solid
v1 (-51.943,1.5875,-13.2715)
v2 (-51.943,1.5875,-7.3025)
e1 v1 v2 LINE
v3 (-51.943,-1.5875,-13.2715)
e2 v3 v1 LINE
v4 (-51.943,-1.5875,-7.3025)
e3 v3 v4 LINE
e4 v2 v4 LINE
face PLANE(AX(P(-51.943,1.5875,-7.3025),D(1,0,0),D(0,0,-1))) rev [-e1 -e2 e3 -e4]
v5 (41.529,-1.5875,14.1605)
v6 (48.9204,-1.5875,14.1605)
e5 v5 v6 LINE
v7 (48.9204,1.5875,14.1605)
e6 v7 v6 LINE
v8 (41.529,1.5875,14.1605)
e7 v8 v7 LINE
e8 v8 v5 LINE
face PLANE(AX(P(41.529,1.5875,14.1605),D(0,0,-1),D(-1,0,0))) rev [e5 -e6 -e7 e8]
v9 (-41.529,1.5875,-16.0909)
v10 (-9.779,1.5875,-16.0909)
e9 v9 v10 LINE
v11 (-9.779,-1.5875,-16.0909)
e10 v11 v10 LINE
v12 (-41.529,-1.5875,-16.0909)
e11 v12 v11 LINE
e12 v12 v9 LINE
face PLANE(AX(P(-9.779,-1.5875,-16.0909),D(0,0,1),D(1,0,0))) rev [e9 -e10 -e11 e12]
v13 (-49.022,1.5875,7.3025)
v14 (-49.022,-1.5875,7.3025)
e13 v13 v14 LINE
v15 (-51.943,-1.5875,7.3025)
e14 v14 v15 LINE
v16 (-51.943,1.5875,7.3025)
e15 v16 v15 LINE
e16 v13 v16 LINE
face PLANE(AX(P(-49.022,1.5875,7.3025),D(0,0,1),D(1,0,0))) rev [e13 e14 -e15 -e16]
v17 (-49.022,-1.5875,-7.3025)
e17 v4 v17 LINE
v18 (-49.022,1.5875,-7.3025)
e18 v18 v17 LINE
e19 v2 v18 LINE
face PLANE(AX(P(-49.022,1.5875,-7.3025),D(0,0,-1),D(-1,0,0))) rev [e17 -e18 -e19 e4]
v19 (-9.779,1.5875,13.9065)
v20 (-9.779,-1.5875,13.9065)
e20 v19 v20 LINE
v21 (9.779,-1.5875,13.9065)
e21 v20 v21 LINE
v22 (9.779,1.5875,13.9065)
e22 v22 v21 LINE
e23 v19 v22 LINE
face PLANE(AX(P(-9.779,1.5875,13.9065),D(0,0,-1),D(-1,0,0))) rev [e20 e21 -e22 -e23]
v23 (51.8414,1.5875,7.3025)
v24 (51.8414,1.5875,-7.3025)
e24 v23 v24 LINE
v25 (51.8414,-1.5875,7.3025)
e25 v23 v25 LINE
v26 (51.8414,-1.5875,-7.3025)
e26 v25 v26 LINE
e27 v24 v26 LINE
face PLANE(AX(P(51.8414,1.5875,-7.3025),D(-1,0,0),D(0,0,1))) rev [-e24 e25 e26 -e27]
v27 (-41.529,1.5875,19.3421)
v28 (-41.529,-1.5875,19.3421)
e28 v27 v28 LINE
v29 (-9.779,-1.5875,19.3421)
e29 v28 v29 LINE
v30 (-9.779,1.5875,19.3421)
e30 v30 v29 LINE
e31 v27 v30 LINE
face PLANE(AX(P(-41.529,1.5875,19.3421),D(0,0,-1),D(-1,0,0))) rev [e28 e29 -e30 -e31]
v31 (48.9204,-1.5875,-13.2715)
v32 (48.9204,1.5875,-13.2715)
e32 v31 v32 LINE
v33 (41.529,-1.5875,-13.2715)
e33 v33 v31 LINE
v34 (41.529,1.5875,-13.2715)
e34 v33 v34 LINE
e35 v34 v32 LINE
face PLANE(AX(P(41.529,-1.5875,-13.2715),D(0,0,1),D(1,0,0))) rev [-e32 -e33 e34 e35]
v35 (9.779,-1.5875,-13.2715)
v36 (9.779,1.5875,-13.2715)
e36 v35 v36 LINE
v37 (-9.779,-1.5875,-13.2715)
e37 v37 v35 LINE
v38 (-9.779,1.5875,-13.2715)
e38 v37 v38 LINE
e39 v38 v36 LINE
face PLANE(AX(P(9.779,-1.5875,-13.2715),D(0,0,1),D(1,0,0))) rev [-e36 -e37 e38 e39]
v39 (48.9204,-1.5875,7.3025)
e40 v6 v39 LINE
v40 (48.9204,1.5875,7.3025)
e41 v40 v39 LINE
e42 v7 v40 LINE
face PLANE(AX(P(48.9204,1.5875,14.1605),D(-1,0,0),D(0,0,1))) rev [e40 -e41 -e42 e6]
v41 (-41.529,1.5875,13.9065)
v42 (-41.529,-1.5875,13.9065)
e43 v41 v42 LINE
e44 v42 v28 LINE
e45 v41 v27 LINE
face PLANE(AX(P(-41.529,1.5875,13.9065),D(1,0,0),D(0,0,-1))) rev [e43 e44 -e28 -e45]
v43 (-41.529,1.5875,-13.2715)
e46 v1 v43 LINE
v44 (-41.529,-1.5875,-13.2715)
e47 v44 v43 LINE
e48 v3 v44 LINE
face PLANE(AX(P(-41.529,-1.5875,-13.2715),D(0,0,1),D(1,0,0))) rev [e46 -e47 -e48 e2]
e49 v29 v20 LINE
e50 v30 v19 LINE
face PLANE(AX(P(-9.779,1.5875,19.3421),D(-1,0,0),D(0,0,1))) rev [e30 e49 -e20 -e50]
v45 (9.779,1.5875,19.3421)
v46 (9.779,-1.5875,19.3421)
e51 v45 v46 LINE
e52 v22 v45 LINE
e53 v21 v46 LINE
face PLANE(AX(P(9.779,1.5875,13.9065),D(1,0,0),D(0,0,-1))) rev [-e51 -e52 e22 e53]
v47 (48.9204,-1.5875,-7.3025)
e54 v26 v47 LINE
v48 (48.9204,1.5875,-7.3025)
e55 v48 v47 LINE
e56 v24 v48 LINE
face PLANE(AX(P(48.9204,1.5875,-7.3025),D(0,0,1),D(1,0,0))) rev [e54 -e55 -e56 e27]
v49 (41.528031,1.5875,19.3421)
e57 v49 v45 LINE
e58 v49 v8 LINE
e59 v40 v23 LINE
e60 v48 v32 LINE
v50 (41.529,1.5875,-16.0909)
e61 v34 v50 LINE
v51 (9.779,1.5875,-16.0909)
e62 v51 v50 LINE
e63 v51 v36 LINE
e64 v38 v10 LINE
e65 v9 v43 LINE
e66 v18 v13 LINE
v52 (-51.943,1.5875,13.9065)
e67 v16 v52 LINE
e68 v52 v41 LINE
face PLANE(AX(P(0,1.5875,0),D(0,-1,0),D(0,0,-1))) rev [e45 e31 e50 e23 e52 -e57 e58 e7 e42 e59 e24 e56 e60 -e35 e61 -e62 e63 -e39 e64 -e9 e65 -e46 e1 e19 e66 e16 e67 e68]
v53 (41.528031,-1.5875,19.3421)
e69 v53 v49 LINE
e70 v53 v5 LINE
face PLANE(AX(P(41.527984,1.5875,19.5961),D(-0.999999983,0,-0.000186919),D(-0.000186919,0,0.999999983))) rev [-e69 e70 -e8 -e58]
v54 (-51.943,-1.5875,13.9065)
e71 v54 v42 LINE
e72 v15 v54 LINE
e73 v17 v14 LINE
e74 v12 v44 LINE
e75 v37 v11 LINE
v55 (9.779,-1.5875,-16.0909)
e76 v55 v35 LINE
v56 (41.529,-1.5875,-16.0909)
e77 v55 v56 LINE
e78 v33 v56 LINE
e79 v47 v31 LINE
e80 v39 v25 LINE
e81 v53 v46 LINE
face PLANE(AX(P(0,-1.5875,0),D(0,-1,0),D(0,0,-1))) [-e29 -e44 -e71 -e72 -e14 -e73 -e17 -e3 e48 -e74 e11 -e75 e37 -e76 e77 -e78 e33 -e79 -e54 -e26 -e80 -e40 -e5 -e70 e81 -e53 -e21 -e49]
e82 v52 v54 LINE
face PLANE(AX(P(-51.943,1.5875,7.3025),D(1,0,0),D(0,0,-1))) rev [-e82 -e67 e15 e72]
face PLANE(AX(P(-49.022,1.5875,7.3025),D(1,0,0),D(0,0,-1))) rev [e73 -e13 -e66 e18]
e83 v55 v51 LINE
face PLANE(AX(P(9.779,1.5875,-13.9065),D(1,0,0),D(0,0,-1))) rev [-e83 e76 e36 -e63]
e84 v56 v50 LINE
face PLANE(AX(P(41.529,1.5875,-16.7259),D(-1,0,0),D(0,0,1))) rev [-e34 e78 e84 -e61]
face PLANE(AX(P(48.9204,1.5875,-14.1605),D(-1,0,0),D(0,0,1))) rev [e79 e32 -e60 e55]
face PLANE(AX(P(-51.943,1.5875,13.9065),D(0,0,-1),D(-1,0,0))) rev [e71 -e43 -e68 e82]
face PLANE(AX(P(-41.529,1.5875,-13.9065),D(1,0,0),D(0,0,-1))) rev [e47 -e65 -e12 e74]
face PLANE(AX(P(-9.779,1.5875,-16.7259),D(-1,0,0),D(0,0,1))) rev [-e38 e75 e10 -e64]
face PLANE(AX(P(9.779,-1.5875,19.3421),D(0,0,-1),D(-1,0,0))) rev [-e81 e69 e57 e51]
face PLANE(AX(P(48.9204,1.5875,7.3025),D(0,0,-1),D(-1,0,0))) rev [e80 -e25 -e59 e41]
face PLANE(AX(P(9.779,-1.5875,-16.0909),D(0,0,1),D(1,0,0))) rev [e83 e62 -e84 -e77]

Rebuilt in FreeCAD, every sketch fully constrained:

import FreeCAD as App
import Part
import Sketcher
from FreeCAD import Vector
Q = App.Units.Quantity

doc = App.newDocument("Part")
params = doc.addObject("Spreadsheet::Sheet", "Params")
for row, (alias, value) in enumerate([
    ("sketch1_width", "0.41 in"),
    ("sketch1_width2", "1.25 in"),
    ("sketch1_width3", "0.77 in"),
    ("sketch1_height", "0.26 in"),
    ("sketch1_height2", "0.27 in"),
    ("pad1_length", "0.125 in"),
    ("sketch2_width", "0.41 in"),
    ("sketch2_width2", "0.77 in"),
    ("sketch2_width3", "0.291 in"),
    ("sketch2_height", "0.025 in"),
    ("sketch2_height2", "0.035 in"),
    ("sketch3_width", "1.25 in"),
    ("sketch3_length", "0.01 in"),
    ("sketch3_height", "0.025 in"),
], start=1):
    params.set(f"A{row}", alias)
    params.set(f"B{row}", "=" + value)
    params.setAlias(f"B{row}", alias)

body = doc.addObject("PartDesign::Body", "Body")

# Sketch on XZ plane
sketch1 = doc.addObject("Sketcher::SketchObject", "Sketch")
body.addObject(sketch1)
sketch1.AttachmentSupport = (doc.XZ_Plane, [""])
sketch1.MapMode = "FlatFace"
sketch1.addGeometry(Part.LineSegment(Vector(-49, -7.3, 0), Vector(-49, 7.3, 0)), False)
sketch1.addGeometry(Part.LineSegment(Vector(-49, 7.3, 0), Vector(-51.9, 7.3, 0)), False)
sketch1.addGeometry(Part.LineSegment(Vector(-51.9, 7.3, 0), Vector(-51.9, 13.9, 0)), False)
sketch1.addGeometry(Part.LineSegment(Vector(-51.9, 13.9, 0), Vector(-41.5, 13.9, 0)), False)
sketch1.addGeometry(Part.LineSegment(Vector(-41.5, 13.9, 0), Vector(-41.5, 19.3, 0)), False)
sketch1.addGeometry(Part.LineSegment(Vector(-41.5, 19.3, 0), Vector(-9.8, 19.3, 0)), False)
sketch1.addGeometry(Part.LineSegment(Vector(-9.8, 19.3, 0), Vector(-9.8, 13.9, 0)), False)
sketch1.addGeometry(Part.LineSegment(Vector(-9.8, 13.9, 0), Vector(9.8, 13.9, 0)), False)
sketch1.addGeometry(Part.LineSegment(Vector(9.8, 13.9, 0), Vector(9.8, 19.3, 0)), False)
sketch1.addGeometry(Part.LineSegment(Vector(9.8, 19.3, 0), Vector(41.5, 19.6, 0)), False)
sketch1.addGeometry(Part.LineSegment(Vector(41.5, 19.6, 0), Vector(41.5, 14.2, 0)), False)
sketch1.addGeometry(Part.LineSegment(Vector(41.5, 14.2, 0), Vector(48.9, 14.2, 0)), False)
sketch1.addGeometry(Part.LineSegment(Vector(48.9, 14.2, 0), Vector(48.9, 7.3, 0)), False)
sketch1.addGeometry(Part.LineSegment(Vector(48.9, 7.3, 0), Vector(51.8, 7.3, 0)), False)
sketch1.addGeometry(Part.LineSegment(Vector(51.8, 7.3, 0), Vector(51.8, -7.3, 0)), False)
sketch1.addGeometry(Part.LineSegment(Vector(51.8, -7.3, 0), Vector(48.9, -7.3, 0)), False)
sketch1.addGeometry(Part.LineSegment(Vector(48.9, -7.3, 0), Vector(48.9, -14.2, 0)), False)
sketch1.addGeometry(Part.LineSegment(Vector(48.9, -14.2, 0), Vector(41.5, -14.2, 0)), False)
sketch1.addGeometry(Part.LineSegment(Vector(41.5, -14.2, 0), Vector(41.5, -16.7, 0)), False)
sketch1.addGeometry(Part.LineSegment(Vector(41.5, -16.7, 0), Vector(9.8, -16.7, 0)), False)
sketch1.addGeometry(Part.LineSegment(Vector(9.8, -16.7, 0), Vector(9.8, -13.9, 0)), False)
sketch1.addGeometry(Part.LineSegment(Vector(9.8, -13.9, 0), Vector(-9.8, -13.9, 0)), False)
sketch1.addGeometry(Part.LineSegment(Vector(-9.8, -13.9, 0), Vector(-9.8, -16.7, 0)), False)
sketch1.addGeometry(Part.LineSegment(Vector(-9.8, -16.7, 0), Vector(-41.5, -16.7, 0)), False)
sketch1.addGeometry(Part.LineSegment(Vector(-41.5, -16.7, 0), Vector(-41.5, -13.9, 0)), False)
sketch1.addGeometry(Part.LineSegment(Vector(-41.5, -13.9, 0), Vector(-51.9, -13.9, 0)), False)
sketch1.addGeometry(Part.LineSegment(Vector(-51.9, -13.9, 0), Vector(-51.9, -7.3, 0)), False)
sketch1.addGeometry(Part.LineSegment(Vector(-51.9, -7.3, 0), Vector(-49, -7.3, 0)), False)
sketch1.addConstraint(Sketcher.Constraint("Coincident", 0, 2, 1, 1))
sketch1.addConstraint(Sketcher.Constraint("Coincident", 1, 2, 2, 1))
sketch1.addConstraint(Sketcher.Constraint("Coincident", 2, 2, 3, 1))
sketch1.addConstraint(Sketcher.Constraint("Coincident", 3, 2, 4, 1))
sketch1.addConstraint(Sketcher.Constraint("Coincident", 4, 2, 5, 1))
sketch1.addConstraint(Sketcher.Constraint("Coincident", 5, 2, 6, 1))
sketch1.addConstraint(Sketcher.Constraint("Coincident", 6, 2, 7, 1))
sketch1.addConstraint(Sketcher.Constraint("Coincident", 7, 2, 8, 1))
sketch1.addConstraint(Sketcher.Constraint("Coincident", 8, 2, 9, 1))
sketch1.addConstraint(Sketcher.Constraint("Coincident", 9, 2, 10, 1))
sketch1.addConstraint(Sketcher.Constraint("Coincident", 10, 2, 11, 1))
sketch1.addConstraint(Sketcher.Constraint("Coincident", 11, 2, 12, 1))
sketch1.addConstraint(Sketcher.Constraint("Coincident", 12, 2, 13, 1))
sketch1.addConstraint(Sketcher.Constraint("Coincident", 13, 2, 14, 1))
sketch1.addConstraint(Sketcher.Constraint("Coincident", 14, 2, 15, 1))
sketch1.addConstraint(Sketcher.Constraint("Coincident", 15, 2, 16, 1))
sketch1.addConstraint(Sketcher.Constraint("Coincident", 16, 2, 17, 1))
sketch1.addConstraint(Sketcher.Constraint("Coincident", 17, 2, 18, 1))
sketch1.addConstraint(Sketcher.Constraint("Coincident", 18, 2, 19, 1))
sketch1.addConstraint(Sketcher.Constraint("Coincident", 19, 2, 20, 1))
sketch1.addConstraint(Sketcher.Constraint("Coincident", 20, 2, 21, 1))
sketch1.addConstraint(Sketcher.Constraint("Coincident", 21, 2, 22, 1))
sketch1.addConstraint(Sketcher.Constraint("Coincident", 22, 2, 23, 1))
sketch1.addConstraint(Sketcher.Constraint("Coincident", 23, 2, 24, 1))
sketch1.addConstraint(Sketcher.Constraint("Coincident", 24, 2, 25, 1))
sketch1.addConstraint(Sketcher.Constraint("Coincident", 25, 2, 26, 1))
sketch1.addConstraint(Sketcher.Constraint("Coincident", 26, 2, 27, 1))
sketch1.addConstraint(Sketcher.Constraint("Coincident", 27, 2, 0, 1))
sketch1.addConstraint(Sketcher.Constraint("Vertical", 0))
sketch1.addConstraint(Sketcher.Constraint("Horizontal", 1))
sketch1.addConstraint(Sketcher.Constraint("Vertical", 2))
sketch1.addConstraint(Sketcher.Constraint("Horizontal", 3))
sketch1.addConstraint(Sketcher.Constraint("Vertical", 4))
sketch1.addConstraint(Sketcher.Constraint("Horizontal", 5))
sketch1.addConstraint(Sketcher.Constraint("Vertical", 6))
sketch1.addConstraint(Sketcher.Constraint("Horizontal", 7))
sketch1.addConstraint(Sketcher.Constraint("Vertical", 8))
sketch1.addConstraint(Sketcher.Constraint("Horizontal", 11))
sketch1.addConstraint(Sketcher.Constraint("Vertical", 12))
sketch1.addConstraint(Sketcher.Constraint("Horizontal", 13))
sketch1.addConstraint(Sketcher.Constraint("Vertical", 14))
sketch1.addConstraint(Sketcher.Constraint("Horizontal", 15))
sketch1.addConstraint(Sketcher.Constraint("Vertical", 16))
sketch1.addConstraint(Sketcher.Constraint("Horizontal", 17))
sketch1.addConstraint(Sketcher.Constraint("Vertical", 18))
sketch1.addConstraint(Sketcher.Constraint("Horizontal", 19))
sketch1.addConstraint(Sketcher.Constraint("Vertical", 20))
sketch1.addConstraint(Sketcher.Constraint("Horizontal", 21))
sketch1.addConstraint(Sketcher.Constraint("Vertical", 22))
sketch1.addConstraint(Sketcher.Constraint("Horizontal", 23))
sketch1.addConstraint(Sketcher.Constraint("Vertical", 24))
sketch1.addConstraint(Sketcher.Constraint("Horizontal", 25))
sketch1.addConstraint(Sketcher.Constraint("Vertical", 26))
sketch1.addConstraint(Sketcher.Constraint("Horizontal", 27))
sketch1.addConstraint(Sketcher.Constraint("Symmetric", 6, 2, 20, 2, -1, 1))
sketch1.addConstraint(Sketcher.Constraint("Symmetric", 5, 2, 8, 2, -2))
sketch1.addConstraint(Sketcher.Constraint("Symmetric", 19, 2, 22, 2, -2))
sketch1.addConstraint(Sketcher.Constraint("Symmetric", 12, 2, 15, 2, -1))
sketch1.addConstraint(Sketcher.Constraint("Symmetric", 10, 2, 17, 2, -1))
sketch1.addConstraint(Sketcher.Constraint("Symmetric", 3, 2, 24, 2, -1))
sketch1.addConstraint(Sketcher.Constraint("Symmetric", 1, 2, 26, 2, -1))
sketch1.addConstraint(Sketcher.Constraint("Horizontal", 3, 2, 6, 2))
sketch1.addConstraint(Sketcher.Constraint("Horizontal", 1, 2, 12, 2))
sketch1.addConstraint(Sketcher.Constraint("Equal", 1, 13))
sketch1.addConstraint(Sketcher.Constraint("Equal", 5, 19))
sketch1.addConstraint(Sketcher.Constraint("DistanceX", 3, 1, 3, 2, Q("0.41 in")))
sketch1.addConstraint(Sketcher.Constraint("DistanceX", 5, 1, 5, 2, Q("1.25 in")))
sketch1.addConstraint(Sketcher.Constraint("DistanceX", 7, 1, 7, 2, Q("0.77 in")))
sketch1.addConstraint(Sketcher.Constraint("DistanceY", 2, 1, 2, 2, Q("0.26 in")))
sketch1.addConstraint(Sketcher.Constraint("DistanceY", 12, 2, 12, 1, Q("0.27 in")))
sketch1.addConstraint(Sketcher.Constraint("Distance", 9, Q("1.25 in")))
sketch1.addConstraint(Sketcher.Constraint("DistanceX", 1, 2, 1, 1, Q("0.115 in")))
sketch1.addConstraint(Sketcher.Constraint("DistanceX", 11, 1, 11, 2, Q("0.291 in")))
sketch1.addConstraint(Sketcher.Constraint("DistanceY", 0, 1, 0, 2, Q("0.575 in")))
sketch1.addConstraint(Sketcher.Constraint("DistanceY", 4, 1, 4, 2, Q("0.214 in")))
sketch1.addConstraint(Sketcher.Constraint("DistanceY", 18, 2, 18, 1, Q("0.101 in")))
sketch1.addConstraint(Sketcher.Constraint("DistanceY", 8, 2, 9, 2, Q("0.01 in")))
sketch1.setExpression("Constraints[65]", "Params.sketch1_width")
sketch1.setExpression("Constraints[66]", "Params.sketch1_width2")
sketch1.setExpression("Constraints[67]", "Params.sketch1_width3")
sketch1.setExpression("Constraints[68]", "Params.sketch1_height")
sketch1.setExpression("Constraints[69]", "Params.sketch1_height2")
pad1 = doc.addObject("PartDesign::Pad", "Pad")
body.addObject(pad1)
pad1.Profile = sketch1
pad1.setExpression("Length", "Params.pad1_length")
pad1.Midplane = True

# Sketch on XZ plane
sketch2 = doc.addObject("Sketcher::SketchObject", "Sketch001")
body.addObject(sketch2)
sketch2.AttachmentSupport = (doc.XZ_Plane, [""])
sketch2.MapMode = "FlatFace"
sketch2.AttachmentOffset = App.Placement(Vector(0, 0, -0.0625 * 25.4), App.Rotation())
sketch2.addGeometry(Part.LineSegment(Vector(-51.9, -13.9, 0), Vector(-51.9, -13.3, 0)), False)
sketch2.addGeometry(Part.LineSegment(Vector(-51.9, -13.3, 0), Vector(-41.5, -13.3, 0)), False)
sketch2.addGeometry(Part.LineSegment(Vector(-41.5, -13.3, 0), Vector(-41.5, -13.9, 0)), False)
sketch2.addGeometry(Part.LineSegment(Vector(-41.5, -13.9, 0), Vector(-51.9, -13.9, 0)), False)
sketch2.addGeometry(Part.LineSegment(Vector(-9.8, -13.9, 0), Vector(-9.8, -13.3, 0)), False)
sketch2.addGeometry(Part.LineSegment(Vector(-9.8, -13.3, 0), Vector(9.8, -13.3, 0)), False)
sketch2.addGeometry(Part.LineSegment(Vector(9.8, -13.3, 0), Vector(9.8, -13.9, 0)), False)
sketch2.addGeometry(Part.LineSegment(Vector(9.8, -13.9, 0), Vector(-9.8, -13.9, 0)), False)
sketch2.addGeometry(Part.LineSegment(Vector(41.5, -14.2, 0), Vector(41.5, -13.3, 0)), False)
sketch2.addGeometry(Part.LineSegment(Vector(41.5, -13.3, 0), Vector(48.9, -13.3, 0)), False)
sketch2.addGeometry(Part.LineSegment(Vector(48.9, -13.3, 0), Vector(48.9, -14.2, 0)), False)
sketch2.addGeometry(Part.LineSegment(Vector(48.9, -14.2, 0), Vector(41.5, -14.2, 0)), False)
sketch2.addConstraint(Sketcher.Constraint("Coincident", 0, 2, 1, 1))
sketch2.addConstraint(Sketcher.Constraint("Coincident", 1, 2, 2, 1))
sketch2.addConstraint(Sketcher.Constraint("Coincident", 2, 2, 3, 1))
sketch2.addConstraint(Sketcher.Constraint("Coincident", 3, 2, 0, 1))
sketch2.addConstraint(Sketcher.Constraint("Coincident", 4, 2, 5, 1))
sketch2.addConstraint(Sketcher.Constraint("Coincident", 5, 2, 6, 1))
sketch2.addConstraint(Sketcher.Constraint("Coincident", 6, 2, 7, 1))
sketch2.addConstraint(Sketcher.Constraint("Coincident", 7, 2, 4, 1))
sketch2.addConstraint(Sketcher.Constraint("Coincident", 8, 2, 9, 1))
sketch2.addConstraint(Sketcher.Constraint("Coincident", 9, 2, 10, 1))
sketch2.addConstraint(Sketcher.Constraint("Coincident", 10, 2, 11, 1))
sketch2.addConstraint(Sketcher.Constraint("Coincident", 11, 2, 8, 1))
sketch2.addConstraint(Sketcher.Constraint("Vertical", 0))
sketch2.addConstraint(Sketcher.Constraint("Horizontal", 1))
sketch2.addConstraint(Sketcher.Constraint("Vertical", 2))
sketch2.addConstraint(Sketcher.Constraint("Horizontal", 3))
sketch2.addConstraint(Sketcher.Constraint("Vertical", 4))
sketch2.addConstraint(Sketcher.Constraint("Horizontal", 5))
sketch2.addConstraint(Sketcher.Constraint("Vertical", 6))
sketch2.addConstraint(Sketcher.Constraint("Horizontal", 7))
sketch2.addConstraint(Sketcher.Constraint("Vertical", 8))
sketch2.addConstraint(Sketcher.Constraint("Horizontal", 9))
sketch2.addConstraint(Sketcher.Constraint("Vertical", 10))
sketch2.addConstraint(Sketcher.Constraint("Horizontal", 11))
sketch2.addConstraint(Sketcher.Constraint("Symmetric", 1, 2, 8, 2, -2))
sketch2.addConstraint(Sketcher.Constraint("Horizontal", 1, 2, 4, 2))
sketch2.addConstraint(Sketcher.Constraint("Horizontal", 3, 2, 6, 2))
sketch2.addConstraint(Sketcher.Constraint("DistanceX", 1, 1, 1, 2, Q("0.41 in")))
sketch2.addConstraint(Sketcher.Constraint("DistanceX", 5, 1, 5, 2, Q("0.77 in")))
sketch2.addConstraint(Sketcher.Constraint("DistanceX", 9, 1, 9, 2, Q("0.291 in")))
sketch2.addConstraint(Sketcher.Constraint("DistanceY", 0, 1, 0, 2, Q("0.025 in")))
sketch2.addConstraint(Sketcher.Constraint("DistanceY", 8, 1, 8, 2, Q("0.035 in")))
sketch2.addConstraint(Sketcher.Constraint("DistanceX", 1, 2, 4, 2, Q("1.25 in")))
sketch2.addConstraint(Sketcher.Constraint("DistanceX", 5, 2, 8, 2, Q("1.25 in")))
sketch2.addConstraint(Sketcher.Constraint("DistanceY", 0, 2, -1, 1, Q("0.5225 in")))
sketch2.setExpression("Constraints[27]", "Params.sketch2_width")
sketch2.setExpression("Constraints[28]", "Params.sketch2_width2")
sketch2.setExpression("Constraints[29]", "Params.sketch2_width3")
sketch2.setExpression("Constraints[30]", "Params.sketch2_height")
sketch2.setExpression("Constraints[31]", "Params.sketch2_height2")
pocket1 = doc.addObject("PartDesign::Pocket", "Pocket")
body.addObject(pocket1)
pocket1.Profile = sketch2
pocket1.Type = "ThroughAll"
pocket1.Reversed = True

# Sketch on XZ plane
sketch3 = doc.addObject("Sketcher::SketchObject", "Sketch002")
body.addObject(sketch3)
sketch3.AttachmentSupport = (doc.XZ_Plane, [""])
sketch3.MapMode = "FlatFace"
sketch3.AttachmentOffset = App.Placement(Vector(0, 0, -0.0625 * 25.4), App.Rotation())
sketch3.addGeometry(Part.LineSegment(Vector(-41.53, -16.73, 0), Vector(-41.53, -16.09, 0)), False)
sketch3.addGeometry(Part.LineSegment(Vector(-41.53, -16.09, 0), Vector(-9.78, -16.09, 0)), False)
sketch3.addGeometry(Part.LineSegment(Vector(-9.78, -16.09, 0), Vector(-9.78, -16.73, 0)), False)
sketch3.addGeometry(Part.LineSegment(Vector(-9.78, -16.73, 0), Vector(-41.53, -16.73, 0)), False)
sketch3.addGeometry(Part.LineSegment(Vector(41.53, 19.34, 0), Vector(9.78, 19.34, 0)), False)
sketch3.addGeometry(Part.LineSegment(Vector(9.78, 19.34, 0), Vector(9.78, 19.6, 0)), False)
sketch3.addGeometry(Part.LineSegment(Vector(9.78, 19.6, 0), Vector(41.53, 19.6, 0)), False)
sketch3.addGeometry(Part.LineSegment(Vector(41.53, 19.6, 0), Vector(41.53, 19.34, 0)), False)
sketch3.addGeometry(Part.LineSegment(Vector(9.78, -16.73, 0), Vector(9.78, -16.09, 0)), False)
sketch3.addGeometry(Part.LineSegment(Vector(9.78, -16.09, 0), Vector(41.53, -16.09, 0)), False)
sketch3.addGeometry(Part.LineSegment(Vector(41.53, -16.09, 0), Vector(41.53, -16.73, 0)), False)
sketch3.addGeometry(Part.LineSegment(Vector(41.53, -16.73, 0), Vector(9.78, -16.73, 0)), False)
sketch3.addConstraint(Sketcher.Constraint("Coincident", 0, 2, 1, 1))
sketch3.addConstraint(Sketcher.Constraint("Coincident", 1, 2, 2, 1))
sketch3.addConstraint(Sketcher.Constraint("Coincident", 2, 2, 3, 1))
sketch3.addConstraint(Sketcher.Constraint("Coincident", 3, 2, 0, 1))
sketch3.addConstraint(Sketcher.Constraint("Coincident", 4, 2, 5, 1))
sketch3.addConstraint(Sketcher.Constraint("Coincident", 5, 2, 6, 1))
sketch3.addConstraint(Sketcher.Constraint("Coincident", 6, 2, 7, 1))
sketch3.addConstraint(Sketcher.Constraint("Coincident", 7, 2, 4, 1))
sketch3.addConstraint(Sketcher.Constraint("Coincident", 8, 2, 9, 1))
sketch3.addConstraint(Sketcher.Constraint("Coincident", 9, 2, 10, 1))
sketch3.addConstraint(Sketcher.Constraint("Coincident", 10, 2, 11, 1))
sketch3.addConstraint(Sketcher.Constraint("Coincident", 11, 2, 8, 1))
sketch3.addConstraint(Sketcher.Constraint("Vertical", 0))
sketch3.addConstraint(Sketcher.Constraint("Horizontal", 1))
sketch3.addConstraint(Sketcher.Constraint("Vertical", 2))
sketch3.addConstraint(Sketcher.Constraint("Horizontal", 3))
sketch3.addConstraint(Sketcher.Constraint("Horizontal", 4))
sketch3.addConstraint(Sketcher.Constraint("Horizontal", 6))
sketch3.addConstraint(Sketcher.Constraint("Vertical", 8))
sketch3.addConstraint(Sketcher.Constraint("Horizontal", 9))
sketch3.addConstraint(Sketcher.Constraint("Vertical", 10))
sketch3.addConstraint(Sketcher.Constraint("Horizontal", 11))
sketch3.addConstraint(Sketcher.Constraint("Symmetric", 1, 2, 8, 2, -2))
sketch3.addConstraint(Sketcher.Constraint("Symmetric", 3, 2, 10, 2, -2))
sketch3.addConstraint(Sketcher.Constraint("Vertical", 4, 2, 8, 2))
sketch3.addConstraint(Sketcher.Constraint("DistanceX", 1, 1, 1, 2, Q("1.25 in")))
sketch3.addConstraint(Sketcher.Constraint("Distance", 5, Q("0.01 in")))
sketch3.addConstraint(Sketcher.Constraint("DistanceY", 0, 1, 0, 2, Q("0.025 in")))
sketch3.addConstraint(Sketcher.Constraint("DistanceX", 1, 2, 4, 2, Q("0.77 in")))
sketch3.addConstraint(Sketcher.Constraint("DistanceY", 2, 2, 4, 2, Q("1.42 in")))
sketch3.addConstraint(Sketcher.Constraint("DistanceY", 0, 2, -1, 1, Q("0.6335 in")))
sketch3.addConstraint(Sketcher.Constraint("DistanceX", 4, 2, 4, 1, Q("31.749031 mm")))
sketch3.addConstraint(Sketcher.Constraint("DistanceX", 6, 1, 6, 2, Q("31.748887 mm")))
sketch3.addConstraint(Sketcher.Constraint("DistanceX", -1, 1, 5, 2, Q("9.779097 mm")))
sketch3.setExpression("Constraints[25]", "Params.sketch3_width")
sketch3.setExpression("Constraints[26]", "Params.sketch3_length")
sketch3.setExpression("Constraints[27]", "Params.sketch3_height")
pocket2 = doc.addObject("PartDesign::Pocket", "Pocket001")
body.addObject(pocket2)
pocket2.Profile = sketch3
pocket2.Type = "ThroughAll"
pocket2.Reversed = True

doc.recompute()
